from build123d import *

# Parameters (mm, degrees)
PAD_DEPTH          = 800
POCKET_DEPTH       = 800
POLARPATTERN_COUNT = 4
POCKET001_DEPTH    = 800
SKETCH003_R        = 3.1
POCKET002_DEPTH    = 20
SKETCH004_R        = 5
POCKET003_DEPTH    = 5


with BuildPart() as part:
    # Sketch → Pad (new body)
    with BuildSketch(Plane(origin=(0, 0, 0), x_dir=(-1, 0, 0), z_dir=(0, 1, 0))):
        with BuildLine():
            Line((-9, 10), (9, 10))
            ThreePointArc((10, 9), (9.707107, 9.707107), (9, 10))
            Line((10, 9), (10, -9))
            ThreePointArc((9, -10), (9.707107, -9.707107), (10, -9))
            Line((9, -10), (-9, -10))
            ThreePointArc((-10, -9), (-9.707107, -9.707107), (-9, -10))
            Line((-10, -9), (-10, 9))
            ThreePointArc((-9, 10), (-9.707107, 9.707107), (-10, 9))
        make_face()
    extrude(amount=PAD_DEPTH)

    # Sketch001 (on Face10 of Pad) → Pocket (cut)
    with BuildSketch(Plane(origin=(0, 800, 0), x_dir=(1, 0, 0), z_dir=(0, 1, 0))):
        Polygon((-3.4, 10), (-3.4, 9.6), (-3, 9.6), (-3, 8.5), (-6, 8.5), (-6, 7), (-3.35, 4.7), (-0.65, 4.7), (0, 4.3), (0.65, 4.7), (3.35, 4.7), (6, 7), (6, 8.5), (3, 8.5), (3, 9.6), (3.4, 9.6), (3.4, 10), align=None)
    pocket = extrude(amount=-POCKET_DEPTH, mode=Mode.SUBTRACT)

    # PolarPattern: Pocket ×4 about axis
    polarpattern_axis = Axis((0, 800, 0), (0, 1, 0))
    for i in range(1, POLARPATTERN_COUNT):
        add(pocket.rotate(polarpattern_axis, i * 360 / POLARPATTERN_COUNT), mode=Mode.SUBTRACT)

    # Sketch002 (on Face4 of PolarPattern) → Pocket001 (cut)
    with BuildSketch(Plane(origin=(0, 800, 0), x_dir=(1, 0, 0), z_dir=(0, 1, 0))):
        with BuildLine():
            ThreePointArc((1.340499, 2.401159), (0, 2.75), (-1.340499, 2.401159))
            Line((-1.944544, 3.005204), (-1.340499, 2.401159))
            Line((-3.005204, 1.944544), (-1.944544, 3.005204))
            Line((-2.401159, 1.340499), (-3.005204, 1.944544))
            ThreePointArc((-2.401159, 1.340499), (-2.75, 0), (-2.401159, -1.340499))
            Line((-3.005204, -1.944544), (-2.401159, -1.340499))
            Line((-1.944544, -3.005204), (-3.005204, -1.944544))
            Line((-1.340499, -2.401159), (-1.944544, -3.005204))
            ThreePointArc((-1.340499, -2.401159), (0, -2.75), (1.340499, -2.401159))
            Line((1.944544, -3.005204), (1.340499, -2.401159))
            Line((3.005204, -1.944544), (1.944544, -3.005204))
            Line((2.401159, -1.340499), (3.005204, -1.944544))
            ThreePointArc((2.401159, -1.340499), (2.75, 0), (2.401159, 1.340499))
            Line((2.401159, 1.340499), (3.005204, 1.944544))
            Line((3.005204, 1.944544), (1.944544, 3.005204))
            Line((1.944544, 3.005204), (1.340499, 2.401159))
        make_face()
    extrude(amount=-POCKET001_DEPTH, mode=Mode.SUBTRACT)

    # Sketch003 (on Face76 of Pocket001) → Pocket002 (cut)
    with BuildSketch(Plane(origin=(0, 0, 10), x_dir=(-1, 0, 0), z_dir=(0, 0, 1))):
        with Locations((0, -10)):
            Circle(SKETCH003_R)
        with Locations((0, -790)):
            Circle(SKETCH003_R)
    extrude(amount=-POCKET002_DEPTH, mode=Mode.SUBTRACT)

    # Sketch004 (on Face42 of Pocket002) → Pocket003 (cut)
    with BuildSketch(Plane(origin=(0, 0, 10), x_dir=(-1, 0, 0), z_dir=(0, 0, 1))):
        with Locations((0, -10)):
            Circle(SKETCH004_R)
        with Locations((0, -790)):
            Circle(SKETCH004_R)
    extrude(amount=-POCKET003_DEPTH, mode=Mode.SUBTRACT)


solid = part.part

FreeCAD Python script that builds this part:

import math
import FreeCAD as App
import Part
import Sketcher

V = App.Vector


def add_polygon(sketch, points):
    """Adds a closed chain of lines whose ends are joined by coincident constraints."""
    first, n = sketch.GeometryCount, len(points)
    for a, b in zip(points, points[1:] + points[:1]):
        sketch.addGeometry(Part.LineSegment(App.Vector(*a, 0), App.Vector(*b, 0)), False)
    for i in range(n):
        sketch.addConstraint(Sketcher.Constraint("Coincident", first + i, 2, first + (i + 1) % n, 1))

doc = App.newDocument("Part")
body = doc.addObject("PartDesign::Body", "Body")

# Sketch on XZ plane
sketch1 = body.newObject("Sketcher::SketchObject", "Sketch")
sketch1.AttachmentSupport = (doc.getObject("XZ_Plane"), [""])
sketch1.MapMode = "FlatFace"
sketch1.addGeometry(Part.LineSegment(V(-9, 10, 0), V(9, 10, 0)), False)
sketch1.addGeometry(Part.ArcOfCircle(Part.Circle(V(9, 9, 0), V(0, 0, 1), 1), math.radians(0), math.radians(90)), False)
sketch1.addGeometry(Part.LineSegment(V(10, 9, 0), V(10, -9, 0)), False)
sketch1.addGeometry(Part.ArcOfCircle(Part.Circle(V(9, -9, 0), V(0, 0, 1), 1), math.radians(-90), math.radians(0)), False)
sketch1.addGeometry(Part.LineSegment(V(9, -10, 0), V(-9, -10, 0)), False)
sketch1.addGeometry(Part.ArcOfCircle(Part.Circle(V(-9, -9, 0), V(0, 0, 1), 1), math.radians(180), math.radians(270)), False)
sketch1.addGeometry(Part.LineSegment(V(-10, -9, 0), V(-10, 9, 0)), False)
sketch1.addGeometry(Part.ArcOfCircle(Part.Circle(V(-9, 9, 0), V(0, 0, 1), 1), math.radians(90), math.radians(180)), False)
sketch1.addConstraint(Sketcher.Constraint("Tangent", 0, 2, 1, 2))
sketch1.addConstraint(Sketcher.Constraint("Tangent", 1, 1, 2, 1))
sketch1.addConstraint(Sketcher.Constraint("Tangent", 2, 2, 3, 2))
sketch1.addConstraint(Sketcher.Constraint("Tangent", 3, 1, 4, 1))
sketch1.addConstraint(Sketcher.Constraint("Tangent", 4, 2, 5, 2))
sketch1.addConstraint(Sketcher.Constraint("Tangent", 5, 1, 6, 1))
sketch1.addConstraint(Sketcher.Constraint("Tangent", 6, 2, 7, 2))
sketch1.addConstraint(Sketcher.Constraint("Tangent", 7, 1, 0, 1))
sketch1.addConstraint(Sketcher.Constraint("Horizontal", 0))
sketch1.addConstraint(Sketcher.Constraint("Vertical", 2))
sketch1.addConstraint(Sketcher.Constraint("Horizontal", 4))
sketch1.addConstraint(Sketcher.Constraint("Vertical", 6))
sketch1.addConstraint(Sketcher.Constraint("Equal", 1, 3))
sketch1.addConstraint(Sketcher.Constraint("Equal", 3, 5))
sketch1.addConstraint(Sketcher.Constraint("Equal", 5, 7))
sketch1.addConstraint(Sketcher.Constraint("Symmetric", 1, 3, 5, 3, -1, 1))
sketch1.addConstraint(Sketcher.Constraint("Equal", 4, 2))
sketch1.addConstraint(Sketcher.Constraint("Radius", 1, 0.999999))
sketch1.addConstraint(Sketcher.Constraint("DistanceX", 0, 1, 0, 2, 18.0))
pad1 = body.newObject("PartDesign::Pad", "Pad")
pad1.Profile = sketch1
pad1.Length = 800
pad1.Reversed = True

# Sketch on XZ plane
sketch2 = body.newObject("Sketcher::SketchObject", "Sketch001")
sketch2.AttachmentSupport = (doc.getObject("XZ_Plane"), [""])
sketch2.MapMode = "FlatFace"
sketch2.AttachmentOffset = App.Placement(V(0, 0, -800), App.Rotation())
add_polygon(sketch2, [(-3.4, -10), (-3.4, -9.6), (-3, -9.6), (-3, -8.5), (-6, -8.5), (-6, -7), (-3.35, -4.7), (-0.65, -4.7), (0, -4.3), (0.65, -4.7), (3.35, -4.7), (6, -7), (6, -8.5), (3, -8.5), (3, -9.6), (3.4, -9.6), (3.4, -10)])  # lines 0-16
sketch2.addConstraint(Sketcher.Constraint("Vertical", 0))
sketch2.addConstraint(Sketcher.Constraint("Horizontal", 1))
sketch2.addConstraint(Sketcher.Constraint("Vertical", 2))
sketch2.addConstraint(Sketcher.Constraint("Horizontal", 3))
sketch2.addConstraint(Sketcher.Constraint("Vertical", 4))
sketch2.addConstraint(Sketcher.Constraint("Horizontal", 6))
sketch2.addConstraint(Sketcher.Constraint("Horizontal", 9))
sketch2.addConstraint(Sketcher.Constraint("Vertical", 11))
sketch2.addConstraint(Sketcher.Constraint("Horizontal", 12))
sketch2.addConstraint(Sketcher.Constraint("Vertical", 13))
sketch2.addConstraint(Sketcher.Constraint("Horizontal", 14))
sketch2.addConstraint(Sketcher.Constraint("Vertical", 15))
sketch2.addConstraint(Sketcher.Constraint("Horizontal", 16))
sketch2.addConstraint(Sketcher.Constraint("Symmetric", 6, 2, 8, 2, -2))
sketch2.addConstraint(Sketcher.Constraint("Symmetric", 4, 2, 10, 2, -2))
sketch2.addConstraint(Sketcher.Constraint("Symmetric", 2, 2, 12, 2, -2))
sketch2.addConstraint(Sketcher.Constraint("Symmetric", 0, 2, 14, 2, -2))
sketch2.addConstraint(Sketcher.Constraint("PointOnObject", 7, 2, -2))
sketch2.addConstraint(Sketcher.Constraint("Equal", 6, 9))
sketch2.addConstraint(Sketcher.Constraint("Equal", 14, 0))
sketch2.addConstraint(Sketcher.Constraint("DistanceX", 3, 2, 3, 1, 3.0))
sketch2.addConstraint(Sketcher.Constraint("DistanceX", 1, 1, 1, 2, 0.4))
sketch2.addConstraint(Sketcher.Constraint("DistanceX", 6, 1, 6, 2, 2.7))
sketch2.addConstraint(Sketcher.Constraint("DistanceX", 16, 2, 16, 1, 6.8))
sketch2.addConstraint(Sketcher.Constraint("DistanceY", 2, 1, 2, 2, 1.1))
sketch2.addConstraint(Sketcher.Constraint("DistanceY", 4, 1, 4, 2, 1.5))
sketch2.addConstraint(Sketcher.Constraint("DistanceY", 4, 2, -1, 1, 7.0))
sketch2.addConstraint(Sketcher.Constraint("DistanceX", 5, 2, 8, 2, 4.0))
sketch2.addConstraint(Sketcher.Constraint("DistanceY", 5, 2, -1, 1, 4.7))
sketch2.addConstraint(Sketcher.Constraint("DistanceY", 7, 2, -1, 1, 4.3))
pocket1 = body.newObject("PartDesign::Pocket", "Pocket")
pocket1.Profile = sketch2
pocket1.Length = 800
pocket1.Reversed = True
doc.recompute()

polarpattern = body.newObject("PartDesign::PolarPattern", "PolarPattern")
polarpattern.Originals = [pocket1]
polarpattern.Axis = (doc.getObject("Y_Axis"), [""])
polarpattern.Angle = 360
polarpattern.Occurrences = 4
body.Tip = polarpattern

# Sketch on XZ plane
sketch3 = body.newObject("Sketcher::SketchObject", "Sketch002")
sketch3.AttachmentSupport = (doc.getObject("XZ_Plane"), [""])
sketch3.MapMode = "FlatFace"
sketch3.AttachmentOffset = App.Placement(V(0, 0, -800), App.Rotation())
sketch3.addGeometry(Part.ArcOfCircle(Part.Circle(V(0, 0, 0), V(0, 0, 1), 2.8), math.radians(-119), math.radians(-61)), False)
sketch3.addGeometry(Part.LineSegment(V(-1.3, -2.4, 0), V(-1.9, -3, 0)), False)
sketch3.addGeometry(Part.LineSegment(V(-1.9, -3, 0), V(-3, -1.9, 0)), False)
sketch3.addGeometry(Part.LineSegment(V(-3, -1.9, 0), V(-2.4, -1.3, 0)), False)
sketch3.addGeometry(Part.ArcOfCircle(Part.Circle(V(0, 0, 0), V(0, 0, 1), 2.8), math.radians(151), math.radians(209)), False)
sketch3.addGeometry(Part.LineSegment(V(-2.4, 1.3, 0), V(-3, 1.9, 0)), False)
sketch3.addGeometry(Part.LineSegment(V(-3, 1.9, 0), V(-1.9, 3, 0)), False)
sketch3.addGeometry(Part.LineSegment(V(-1.9, 3, 0), V(-1.3, 2.4, 0)), False)
sketch3.addGeometry(Part.ArcOfCircle(Part.Circle(V(0, 0, 0), V(0, 0, 1), 2.8), math.radians(61), math.radians(119)), False)
sketch3.addGeometry(Part.LineSegment(V(1.3, 2.4, 0), V(1.9, 3, 0)), False)
sketch3.addGeometry(Part.LineSegment(V(1.9, 3, 0), V(3, 1.9, 0)), False)
sketch3.addGeometry(Part.LineSegment(V(3, 1.9, 0), V(2.4, 1.3, 0)), False)
sketch3.addGeometry(Part.ArcOfCircle(Part.Circle(V(0, 0, 0), V(0, 0, 1), 2.8), math.radians(-29), math.radians(29)), False)
sketch3.addGeometry(Part.LineSegment(V(2.4, -1.3, 0), V(3, -1.9, 0)), False)
sketch3.addGeometry(Part.LineSegment(V(3, -1.9, 0), V(1.9, -3, 0)), False)
sketch3.addGeometry(Part.LineSegment(V(1.9, -3, 0), V(1.3, -2.4, 0)), False)
sketch3.addConstraint(Sketcher.Constraint("Coincident", 0, 1, 1, 1))
sketch3.addConstraint(Sketcher.Constraint("Coincident", 1, 2, 2, 1))
sketch3.addConstraint(Sketcher.Constraint("Coincident", 2, 2, 3, 1))
sketch3.addConstraint(Sketcher.Constraint("Coincident", 3, 2, 4, 2))
sketch3.addConstraint(Sketcher.Constraint("Coincident", 4, 1, 5, 1))
sketch3.addConstraint(Sketcher.Constraint("Coincident", 5, 2, 6, 1))
sketch3.addConstraint(Sketcher.Constraint("Coincident", 6, 2, 7, 1))
sketch3.addConstraint(Sketcher.Constraint("Coincident", 7, 2, 8, 2))
sketch3.addConstraint(Sketcher.Constraint("Coincident", 8, 1, 9, 1))
sketch3.addConstraint(Sketcher.Constraint("Coincident", 9, 2, 10, 1))
sketch3.addConstraint(Sketcher.Constraint("Coincident", 10, 2, 11, 1))
sketch3.addConstraint(Sketcher.Constraint("Coincident", 11, 2, 12, 2))
sketch3.addConstraint(Sketcher.Constraint("Coincident", 12, 1, 13, 1))
sketch3.addConstraint(Sketcher.Constraint("Coincident", 13, 2, 14, 1))
sketch3.addConstraint(Sketcher.Constraint("Coincident", 14, 2, 15, 1))
sketch3.addConstraint(Sketcher.Constraint("Coincident", 15, 2, 0, 2))
sketch3.addConstraint(Sketcher.Constraint("Coincident", 0, 3, -1, 1))
sketch3.addConstraint(Sketcher.Constraint("Coincident", 4, 3, -1, 1))
sketch3.addConstraint(Sketcher.Constraint("Coincident", 8, 3, -1, 1))
sketch3.addConstraint(Sketcher.Constraint("Coincident", 12, 3, -1, 1))
sketch3.addConstraint(Sketcher.Constraint("Equal", 0, 4))
sketch3.addConstraint(Sketcher.Constraint("Equal", 4, 8))
sketch3.addConstraint(Sketcher.Constraint("Equal", 8, 12))
sketch3.addConstraint(Sketcher.Constraint("Symmetric", 1, 2, 9, 2, -1, 1))
sketch3.addConstraint(Sketcher.Constraint("Symmetric", 2, 2, 10, 2, -1, 1))
sketch3.addConstraint(Sketcher.Constraint("Symmetric", 5, 2, 13, 2, -1, 1))
sketch3.addConstraint(Sketcher.Constraint("Symmetric", 6, 2, 14, 2, -1, 1))
sketch3.addConstraint(Sketcher.Constraint("Symmetric", 6, 2, 9, 2, -2))
sketch3.addConstraint(Sketcher.Constraint("Symmetric", 5, 2, 10, 2, -2))
sketch3.addConstraint(Sketcher.Constraint("Perpendicular", 1, 2))
sketch3.addConstraint(Sketcher.Constraint("Perpendicular", 2, 3))
sketch3.addConstraint(Sketcher.Constraint("Perpendicular", 3, 5))
sketch3.addConstraint(Sketcher.Constraint("Perpendicular", 5, 6))
sketch3.addConstraint(Sketcher.Constraint("Perpendicular", 6, 7))
sketch3.addConstraint(Sketcher.Constraint("Perpendicular", 7, 9))
sketch3.addConstraint(Sketcher.Constraint("Perpendicular", 10, 11))
sketch3.addConstraint(Sketcher.Constraint("Perpendicular", 11, 13))
sketch3.addConstraint(Sketcher.Constraint("Perpendicular", 14, 15))
sketch3.addConstraint(Sketcher.Constraint("Equal", 1, 3))
sketch3.addConstraint(Sketcher.Constraint("Distance", 2, 1.5))
sketch3.addConstraint(Sketcher.Constraint("Radius", 0, 2.750003))
sketch3.addConstraint(Sketcher.Constraint("DistanceY", 1, 2, 8, 3, 3.005201))
pocket2 = body.newObject("PartDesign::Pocket", "Pocket001")
pocket2.Profile = sketch3
pocket2.Length = 800
pocket2.Reversed = True

# Sketch on XY plane
sketch4 = body.newObject("Sketcher::SketchObject", "Sketch003")
sketch4.AttachmentSupport = (doc.getObject("XY_Plane"), [""])
sketch4.MapMode = "FlatFace"
sketch4.AttachmentOffset = App.Placement(V(0, 0, 10), App.Rotation())
sketch4.addGeometry(Part.Circle(V(0, 10, 0), V(0, 0, 1), 3.1), False)
sketch4.addGeometry(Part.Circle(V(0, 790, 0), V(0, 0, 1), 3.1), False)
sketch4.addConstraint(Sketcher.Constraint("Equal", 0, 1))
sketch4.addConstraint(Sketcher.Constraint("PointOnObject", 0, 3, -2))
sketch4.addConstraint(Sketcher.Constraint("PointOnObject", 1, 3, -2))
sketch4.addConstraint(Sketcher.Constraint("Diameter", 0, 6.2))
sketch4.addConstraint(Sketcher.Constraint("DistanceY", -1, 1, 0, 3, 10.0))
sketch4.addConstraint(Sketcher.Constraint("DistanceY", -1, 1, 1, 3, 790.0))
pocket3 = body.newObject("PartDesign::Pocket", "Pocket002")
pocket3.Profile = sketch4
pocket3.Length = 20

# Sketch on XY plane
sketch5 = body.newObject("Sketcher::SketchObject", "Sketch004")
sketch5.AttachmentSupport = (doc.getObject("XY_Plane"), [""])
sketch5.MapMode = "FlatFace"
sketch5.AttachmentOffset = App.Placement(V(0, 0, 10), App.Rotation())
sketch5.addGeometry(Part.Circle(V(0, 10, 0), V(0, 0, 1), 5), False)
sketch5.addGeometry(Part.Circle(V(0, 790, 0), V(0, 0, 1), 5), False)
sketch5.addConstraint(Sketcher.Constraint("Equal", 0, 1))
sketch5.addConstraint(Sketcher.Constraint("PointOnObject", 0, 3, -2))
sketch5.addConstraint(Sketcher.Constraint("PointOnObject", 1, 3, -2))
sketch5.addConstraint(Sketcher.Constraint("Diameter", 0, 10.0))
sketch5.addConstraint(Sketcher.Constraint("DistanceY", -1, 1, 0, 3, 10.0))
sketch5.addConstraint(Sketcher.Constraint("DistanceY", -1, 1, 1, 3, 790.0))
pocket4 = body.newObject("PartDesign::Pocket", "Pocket003")
pocket4.Profile = sketch5
pocket4.Length = 5

doc.recompute()
